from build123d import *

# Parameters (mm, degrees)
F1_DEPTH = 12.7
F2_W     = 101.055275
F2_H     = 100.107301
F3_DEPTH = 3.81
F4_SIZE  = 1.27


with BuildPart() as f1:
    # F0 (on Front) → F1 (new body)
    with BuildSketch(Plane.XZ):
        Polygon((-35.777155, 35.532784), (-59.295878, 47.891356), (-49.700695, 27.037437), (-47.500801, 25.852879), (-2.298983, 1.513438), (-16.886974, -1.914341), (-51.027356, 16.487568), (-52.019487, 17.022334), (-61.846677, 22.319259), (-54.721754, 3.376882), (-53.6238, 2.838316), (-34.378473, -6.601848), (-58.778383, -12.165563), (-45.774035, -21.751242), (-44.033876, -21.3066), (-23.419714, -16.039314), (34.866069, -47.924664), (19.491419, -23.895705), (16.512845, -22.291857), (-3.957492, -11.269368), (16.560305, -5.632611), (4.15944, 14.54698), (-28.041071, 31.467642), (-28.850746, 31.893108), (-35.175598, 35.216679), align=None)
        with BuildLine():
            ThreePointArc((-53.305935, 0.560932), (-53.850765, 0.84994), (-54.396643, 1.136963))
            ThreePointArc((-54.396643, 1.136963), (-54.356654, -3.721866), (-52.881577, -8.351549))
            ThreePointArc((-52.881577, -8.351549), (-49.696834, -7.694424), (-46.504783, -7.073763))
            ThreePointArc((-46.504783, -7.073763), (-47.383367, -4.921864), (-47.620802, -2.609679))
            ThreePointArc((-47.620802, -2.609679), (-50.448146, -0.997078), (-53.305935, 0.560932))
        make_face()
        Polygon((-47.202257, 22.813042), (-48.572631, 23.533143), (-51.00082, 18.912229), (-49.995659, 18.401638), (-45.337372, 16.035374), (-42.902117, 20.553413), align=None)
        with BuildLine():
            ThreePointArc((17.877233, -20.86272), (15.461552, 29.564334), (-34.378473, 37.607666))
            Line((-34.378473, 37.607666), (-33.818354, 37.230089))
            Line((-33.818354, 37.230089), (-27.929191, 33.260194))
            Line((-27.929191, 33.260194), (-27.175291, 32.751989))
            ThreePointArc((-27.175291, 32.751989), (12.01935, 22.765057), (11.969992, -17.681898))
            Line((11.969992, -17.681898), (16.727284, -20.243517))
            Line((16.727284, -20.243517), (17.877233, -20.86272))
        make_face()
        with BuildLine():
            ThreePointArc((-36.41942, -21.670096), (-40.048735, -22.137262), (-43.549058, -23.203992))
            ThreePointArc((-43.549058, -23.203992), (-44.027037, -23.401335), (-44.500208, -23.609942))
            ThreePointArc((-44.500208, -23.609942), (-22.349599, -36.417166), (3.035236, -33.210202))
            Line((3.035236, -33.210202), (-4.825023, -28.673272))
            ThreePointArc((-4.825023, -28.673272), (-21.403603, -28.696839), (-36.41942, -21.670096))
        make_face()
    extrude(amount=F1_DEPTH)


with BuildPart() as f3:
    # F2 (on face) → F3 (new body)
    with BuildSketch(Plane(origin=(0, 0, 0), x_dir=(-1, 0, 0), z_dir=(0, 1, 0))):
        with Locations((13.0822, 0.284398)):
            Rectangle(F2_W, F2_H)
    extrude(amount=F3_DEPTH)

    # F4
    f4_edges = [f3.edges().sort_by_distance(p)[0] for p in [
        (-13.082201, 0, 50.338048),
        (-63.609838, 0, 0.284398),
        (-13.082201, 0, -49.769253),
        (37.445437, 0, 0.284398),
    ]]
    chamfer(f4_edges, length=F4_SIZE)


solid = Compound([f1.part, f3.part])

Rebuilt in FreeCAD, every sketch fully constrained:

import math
import FreeCAD as App
import Part
import Sketcher

V = App.Vector
Q = App.Units.Quantity


def edges_at(feature, points):
    """Names of the edges that pass closest to the given points."""
    edges = feature.Shape.Edges
    near = lambda p: min(range(len(edges)), key=lambda i: edges[i].distToShape(Part.Vertex(*p))[0])
    return sorted({f"Edge{near(p) + 1}" for p in points})

doc = App.newDocument("Part")
body = doc.addObject("PartDesign::Body", "Body")
body.AllowCompound = True

# Sketch on XZ plane
sketch1 = body.newObject("Sketcher::SketchObject", "Sketch")
sketch1.AttachmentSupport = (doc.getObject("XZ_Plane"), [""])
sketch1.MapMode = "FlatFace"
sketch1.addGeometry([
    Part.LineSegment(V(-35.777155, 35.532784, 0), V(-59.295878, 47.891356, 0)),  # 0
    Part.LineSegment(V(-59.295878, 47.891356, 0), V(-49.700695, 27.037437, 0)),  # 1
    Part.LineSegment(V(-49.700695, 27.037437, 0), V(-47.500801, 25.852879, 0)),  # 2
    Part.LineSegment(V(-47.500801, 25.852879, 0), V(-2.298983, 1.513438, 0)),  # 3
    Part.LineSegment(V(-2.298983, 1.513438, 0), V(-16.886974, -1.914341, 0)),  # 4
    Part.LineSegment(V(-16.886974, -1.914341, 0), V(-51.027356, 16.487568, 0)),  # 5
    Part.LineSegment(V(-51.027356, 16.487568, 0), V(-52.019487, 17.022334, 0)),  # 6
    Part.LineSegment(V(-52.019487, 17.022334, 0), V(-61.846677, 22.319259, 0)),  # 7
    Part.LineSegment(V(-61.846677, 22.319259, 0), V(-54.721754, 3.376882, 0)),  # 8
    Part.LineSegment(V(-54.721754, 3.376882, 0), V(-53.6238, 2.838316, 0)),  # 9
    Part.LineSegment(V(-53.6238, 2.838316, 0), V(-34.378473, -6.601848, 0)),  # 10
    Part.LineSegment(V(-34.378473, -6.601848, 0), V(-58.778383, -12.165563, 0)),  # 11
    Part.LineSegment(V(-58.778383, -12.165563, 0), V(-45.774035, -21.751242, 0)),  # 12
    Part.LineSegment(V(-45.774035, -21.751242, 0), V(-44.033876, -21.3066, 0)),  # 13
    Part.LineSegment(V(-44.033876, -21.3066, 0), V(-23.419714, -16.039314, 0)),  # 14
    Part.LineSegment(V(-23.419714, -16.039314, 0), V(34.866069, -47.924664, 0)),  # 15
    Part.LineSegment(V(34.866069, -47.924664, 0), V(19.491419, -23.895705, 0)),  # 16
    Part.LineSegment(V(19.491419, -23.895705, 0), V(16.512845, -22.291857, 0)),  # 17
    Part.LineSegment(V(16.512845, -22.291857, 0), V(-3.957492, -11.269368, 0)),  # 18
    Part.LineSegment(V(-3.957492, -11.269368, 0), V(16.560305, -5.632611, 0)),  # 19
    Part.LineSegment(V(16.560305, -5.632611, 0), V(4.15944, 14.54698, 0)),  # 20
    Part.LineSegment(V(4.15944, 14.54698, 0), V(-28.041071, 31.467642, 0)),  # 21
    Part.LineSegment(V(-28.041071, 31.467642, 0), V(-28.850746, 31.893108, 0)),  # 22
    Part.LineSegment(V(-28.850746, 31.893108, 0), V(-35.175598, 35.216679, 0)),  # 23
    Part.LineSegment(V(-35.175598, 35.216679, 0), V(-35.777155, 35.532784, 0)),  # 24
    Part.ArcOfCircle(Part.Circle(V(-132.985121, -148.990044, 0), V(0, 0, 1), 169.452846), math.radians(61.951779), math.radians(62.368844)),  # 25
    Part.ArcOfCircle(Part.Circle(V(-38.313851, -1.160252, 0), V(0, 0, 1), 16.246027), math.radians(171.871039), math.radians(206.273058)),  # 26
    Part.ArcOfCircle(Part.Circle(V(6.169142, -286.493703, 0), V(0, 0, 1), 284.341423), math.radians(100.675642), math.radians(101.986159)),  # 27
    Part.ArcOfCircle(Part.Circle(V(-39.452634, -2.939185, 0), V(0, 0, 1), 8.174811), math.radians(177.689927), math.radians(210.382512)),  # 28
    Part.ArcOfCircle(Part.Circle(V(-133.00333, -149.024446, 0), V(0, 0, 1), 169.49177), math.radians(59.75118), math.radians(61.951815)),  # 29
    Part.LineSegment(V(-47.202257, 22.813042, 0), V(-48.572631, 23.533143, 0)),  # 30
    Part.LineSegment(V(-48.572631, 23.533143, 0), V(-51.00082, 18.912229, 0)),  # 31
    Part.LineSegment(V(-51.00082, 18.912229, 0), V(-49.995659, 18.401638, 0)),  # 32
    Part.LineSegment(V(-49.995659, 18.401638, 0), V(-45.337372, 16.035374, 0)),  # 33
    Part.LineSegment(V(-45.337372, 16.035374, 0), V(-42.902117, 20.553413, 0)),  # 34
    Part.LineSegment(V(-42.902117, 20.553413, 0), V(-47.202257, 22.813042, 0)),  # 35
    Part.ArcOfCircle(Part.Circle(V(-14.41685, 2.861637, 0), V(0, 0, 1), 40.071847), math.radians(-36.302299), math.radians(119.877404)),  # 36
    Part.LineSegment(V(-34.378473, 37.607666, 0), V(-33.818354, 37.230089, 0)),  # 37
    Part.LineSegment(V(-33.818354, 37.230089, 0), V(-27.929191, 33.260194, 0)),  # 38
    Part.LineSegment(V(-27.929191, 33.260194, 0), V(-27.175291, 32.751989, 0)),  # 39
    Part.ArcOfCircle(Part.Circle(V(-13.995255, 2.573295, 0), V(0, 0, 1), 32.931245), math.radians(-37.957387), math.radians(113.592489)),  # 40
    Part.LineSegment(V(11.969992, -17.681898, 0), V(16.727284, -20.243517, 0)),  # 41
    Part.LineSegment(V(16.727284, -20.243517, 0), V(17.877233, -20.86272, 0)),  # 42
    Part.ArcOfCircle(Part.Circle(V(-35.456455, -43.482448, 0), V(0, 0, 1), 21.833598), math.radians(92.527835), math.radians(111.755653)),  # 43
    Part.ArcOfCircle(Part.Circle(V(-35.456216, -43.48296, 0), V(0, 0, 1), 21.834162), math.radians(111.755737), math.radians(114.469759)),  # 44
    Part.ArcOfCircle(Part.Circle(V(-14.41685, 2.861639, 0), V(0, 0, 1), 40.071848), math.radians(-138.654127), math.radians(-64.181621)),  # 45
    Part.LineSegment(V(3.035236, -33.210202, 0), V(-4.825023, -28.673272, 0)),  # 46
    Part.ArcOfCircle(Part.Circle(V(-13.167118, 8.461555, 0), V(0, 0, 1), 38.060294), math.radians(-127.657019), math.radians(-77.339063)),  # 47
], False)
sketch1.addConstraint([
    Sketcher.Constraint("Coincident", 0, 2, 1, 1),
    Sketcher.Constraint("Coincident", 1, 2, 2, 1),
    Sketcher.Constraint("Coincident", 2, 2, 3, 1),
    Sketcher.Constraint("Coincident", 3, 2, 4, 1),
    Sketcher.Constraint("Coincident", 4, 2, 5, 1),
    Sketcher.Constraint("Coincident", 5, 2, 6, 1),
    Sketcher.Constraint("Coincident", 6, 2, 7, 1),
    Sketcher.Constraint("Coincident", 7, 2, 8, 1),
    Sketcher.Constraint("Coincident", 8, 2, 9, 1),
    Sketcher.Constraint("Coincident", 9, 2, 10, 1),
    Sketcher.Constraint("Coincident", 10, 2, 11, 1),
    Sketcher.Constraint("Coincident", 11, 2, 12, 1),
    Sketcher.Constraint("Coincident", 12, 2, 13, 1),
    Sketcher.Constraint("Coincident", 13, 2, 14, 1),
    Sketcher.Constraint("Coincident", 14, 2, 15, 1),
    Sketcher.Constraint("Coincident", 15, 2, 16, 1),
    Sketcher.Constraint("Coincident", 16, 2, 17, 1),
    Sketcher.Constraint("Coincident", 17, 2, 18, 1),
    Sketcher.Constraint("Coincident", 18, 2, 19, 1),
    Sketcher.Constraint("Coincident", 19, 2, 20, 1),
    Sketcher.Constraint("Coincident", 20, 2, 21, 1),
    Sketcher.Constraint("Coincident", 21, 2, 22, 1),
    Sketcher.Constraint("Coincident", 22, 2, 23, 1),
    Sketcher.Constraint("Coincident", 23, 2, 24, 1),
    Sketcher.Constraint("Coincident", 24, 2, 0, 1),
    Sketcher.Constraint("Coincident", 25, 2, 26, 1),
    Sketcher.Constraint("Coincident", 26, 2, 27, 2),
    Sketcher.Constraint("Coincident", 27, 1, 28, 2),
    Sketcher.Constraint("Coincident", 28, 1, 29, 1),
    Sketcher.Constraint("Coincident", 29, 2, 25, 1),
    Sketcher.Constraint("Coincident", 30, 2, 31, 1),
    Sketcher.Constraint("Coincident", 31, 2, 32, 1),
    Sketcher.Constraint("Coincident", 32, 2, 33, 1),
    Sketcher.Constraint("Coincident", 33, 2, 34, 1),
    Sketcher.Constraint("Coincident", 34, 2, 35, 1),
    Sketcher.Constraint("Coincident", 35, 2, 30, 1),
    Sketcher.Constraint("Coincident", 36, 2, 37, 1),
    Sketcher.Constraint("Coincident", 37, 2, 38, 1),
    Sketcher.Constraint("Coincident", 38, 2, 39, 1),
    Sketcher.Constraint("Coincident", 39, 2, 40, 2),
    Sketcher.Constraint("Coincident", 40, 1, 41, 1),
    Sketcher.Constraint("Coincident", 41, 2, 42, 1),
    Sketcher.Constraint("Coincident", 42, 2, 36, 1),
    Sketcher.Constraint("Coincident", 43, 2, 44, 1),
    Sketcher.Constraint("Coincident", 44, 2, 45, 1),
    Sketcher.Constraint("Coincident", 45, 2, 46, 1),
    Sketcher.Constraint("Coincident", 46, 2, 47, 2),
    Sketcher.Constraint("Coincident", 47, 1, 43, 1),
    Sketcher.Constraint("Coincident", 45, 3, 36, 3),
    Sketcher.Constraint("Radius", 43, Q("21.833598 mm")),
    Sketcher.Constraint("Radius", 28, Q("8.174811 mm")),
    Sketcher.Constraint("Radius", 29, Q("169.49177 mm")),
    Sketcher.Constraint("Radius", 44, Q("21.834162 mm")),
    Sketcher.Constraint("Radius", 45, Q("40.071848 mm")),
    Sketcher.Constraint("DistanceX", 25, 2, -1, 1, Q("2.1416001 in")),
    Sketcher.Constraint("Radius", 25, Q("169.452846 mm")),
    Sketcher.Constraint("Radius", 26, Q("16.246027 mm")),
    Sketcher.Constraint("Radius", 27, Q("284.341423 mm")),
    Sketcher.Constraint("Radius", 36, Q("40.071847 mm")),
    Sketcher.Constraint("Radius", 40, Q("32.931245 mm")),
    Sketcher.Constraint("Radius", 47, Q("38.060294 mm")),
    Sketcher.Constraint("DistanceY", 4, 2, 47, 3, Q("0.4084999 in")),
    Sketcher.Constraint("DistanceY", 21, 2, 23, 2, Q("0.1475999 in")),
    Sketcher.Constraint("DistanceY", 46, 2, 14, 2, Q("0.4973999 in")),
    Sketcher.Constraint("Distance", 18, Q("23.2493 mm")),
    Sketcher.Constraint("Distance", 37, Q("0.675498 mm")),
    Sketcher.Constraint("DistanceX", 2, 2, -1, 1, Q("47.500801 mm")),
    Sketcher.Constraint("DistanceX", 9, 2, -1, 1, Q("53.6238 mm")),
    Sketcher.Constraint("DistanceY", 13, 2, -1, 1, Q("21.3066 mm")),
    Sketcher.Constraint("DistanceX", 28, 1, -1, 1, Q("47.620802 mm")),
    Sketcher.Constraint("DistanceY", 45, 2, -1, 1, Q("33.210202 mm")),
    Sketcher.Constraint("DistanceX", 26, 3, 36, 3, Q("23.897001 mm")),
    Sketcher.Constraint("DistanceX", 43, 3, 40, 3, Q("21.4612 mm")),
    Sketcher.Constraint("DistanceY", 47, 3, 0, 2, Q("39.429801 mm")),
    Sketcher.Constraint("DistanceY", 45, 3, 1, 2, Q("24.175798 mm")),
    Sketcher.Constraint("DistanceY", 3, 2, 36, 3, Q("1.348199 mm")),
    Sketcher.Constraint("DistanceX", 7, 2, 0, 2, Q("2.550799 mm")),
    Sketcher.Constraint("DistanceY", 28, 3, 9, 2, Q("5.777501 mm")),
    Sketcher.Constraint("DistanceX", 10, 2, 4, 2, Q("17.491499 mm")),
    Sketcher.Constraint("DistanceX", 12, 2, 28, 3, Q("6.321401 mm")),
    Sketcher.Constraint("DistanceX", 3, 2, 16, 2, Q("21.790402 mm")),
    Sketcher.Constraint("DistanceY", 16, 2, 40, 3, Q("26.469 mm")),
    Sketcher.Constraint("DistanceX", 40, 3, 17, 2, Q("30.5081 mm")),
    Sketcher.Constraint("DistanceY", 2, 2, 23, 2, Q("9.3638 mm")),
    Sketcher.Constraint("DistanceY", 35, 2, 30, 2, Q("0.720101 mm")),
    Sketcher.Constraint("DistanceX", 24, 2, 37, 2, Q("1.958801 mm")),
    Sketcher.Constraint("DistanceX", 38, 2, 39, 2, Q("0.7539 mm")),
    Sketcher.Constraint("DistanceY", 39, 2, 37, 2, Q("4.4781 mm")),
    Sketcher.Constraint("DistanceY", 44, 2, 12, 2, Q("1.8587 mm")),
    Sketcher.Constraint("Distance", 2, Q("2.498542 mm")),
    Sketcher.Constraint("Distance", 3, Q("51.338219 mm")),
    Sketcher.Constraint("Distance", 7, Q("11.163829 mm")),
    Sketcher.Constraint("Distance", 9, Q("1.222929 mm")),
    Sketcher.Constraint("Distance", 15, Q("66.437249 mm")),
    Sketcher.Constraint("Distance", 23, Q("7.14492 mm")),
    Sketcher.Constraint("Distance", 32, Q("1.127409 mm")),
    Sketcher.Constraint("Distance", 33, Q("5.224829 mm")),
    Sketcher.Constraint("Distance", 41, Q("5.403121 mm")),
    Sketcher.Constraint("Distance", 42, Q("1.306061 mm")),
    Sketcher.Constraint("Distance", 46, Q("9.075649 mm")),
    Sketcher.Constraint("DistanceX", 25, 3, -1, 1, Q("132.985121 mm")),
    Sketcher.Constraint("DistanceX", 26, 3, -1, 1, Q("38.313851 mm")),
    Sketcher.Constraint("DistanceY", 26, 3, -1, 1, Q("1.160252 mm")),
    Sketcher.Constraint("DistanceX", -1, 1, 27, 3, Q("6.169142 mm")),
    Sketcher.Constraint("DistanceX", 29, 3, -1, 1, Q("133.00333 mm")),
    Sketcher.Constraint("DistanceY", 43, 3, -1, 1, Q("43.482448 mm")),
    Sketcher.Constraint("DistanceY", 44, 3, -1, 1, Q("43.48296 mm")),
    Sketcher.Constraint("DistanceY", -1, 1, 45, 3, Q("2.861639 mm")),
    Sketcher.Constraint("DistanceX", 47, 3, -1, 1, Q("13.167118 mm")),
    Sketcher.Constraint("DistanceX", 0, 2, -1, 1, Q("59.295878 mm")),
    Sketcher.Constraint("DistanceY", -1, 1, 2, 2, Q("25.852879 mm")),
    Sketcher.Constraint("DistanceY", 4, 2, -1, 1, Q("1.914341 mm")),
    Sketcher.Constraint("DistanceY", -1, 1, 7, 2, Q("22.319259 mm")),
    Sketcher.Constraint("DistanceY", 10, 2, -1, 1, Q("6.601848 mm")),
    Sketcher.Constraint("DistanceX", -1, 1, 15, 2, Q("34.866069 mm")),
    Sketcher.Constraint("DistanceX", 18, 2, -1, 1, Q("3.957492 mm")),
    Sketcher.Constraint("DistanceY", 19, 2, -1, 1, Q("5.632611 mm")),
    Sketcher.Constraint("DistanceX", -1, 1, 20, 2, Q("4.15944 mm")),
    Sketcher.Constraint("DistanceY", -1, 1, 20, 2, Q("14.54698 mm")),
    Sketcher.Constraint("DistanceX", 21, 2, -1, 1, Q("28.041071 mm")),
    Sketcher.Constraint("DistanceY", -1, 1, 22, 2, Q("31.893108 mm")),
    Sketcher.Constraint("DistanceY", 26, 2, -1, 1, Q("8.351549 mm")),
    Sketcher.Constraint("DistanceY", -1, 1, 29, 2, Q("0.560932 mm")),
    Sketcher.Constraint("DistanceX", 30, 2, -1, 1, Q("48.572631 mm")),
    Sketcher.Constraint("DistanceX", 31, 2, -1, 1, Q("51.00082 mm")),
    Sketcher.Constraint("DistanceY", -1, 1, 31, 2, Q("18.912229 mm")),
    Sketcher.Constraint("DistanceX", 32, 2, -1, 1, Q("49.995659 mm")),
    Sketcher.Constraint("DistanceY", -1, 1, 35, 2, Q("22.813042 mm")),
    Sketcher.Constraint("DistanceY", -1, 1, 37, 2, Q("37.230089 mm")),
    Sketcher.Constraint("DistanceX", 38, 2, -1, 1, Q("27.929191 mm")),
    Sketcher.Constraint("DistanceX", -1, 1, 40, 1, Q("11.969992 mm")),
    Sketcher.Constraint("DistanceY", 42, 2, -1, 1, Q("20.86272 mm")),
    Sketcher.Constraint("DistanceY", 25, 3, 28, 3, Q("146.050859 mm")),
    Sketcher.Constraint("DistanceX", 4, 2, 40, 3, Q("2.891719 mm")),
    Sketcher.Constraint("DistanceY", 5, 2, 2, 2, Q("9.365311 mm")),
    Sketcher.Constraint("DistanceX", 5, 2, 1, 2, Q("1.326661 mm")),
    Sketcher.Constraint("DistanceX", 6, 2, 5, 2, Q("0.992131 mm")),
    Sketcher.Constraint("DistanceX", 8, 2, 28, 3, Q("15.26912 mm")),
    Sketcher.Constraint("DistanceY", 11, 2, 9, 2, Q("15.003879 mm")),
    Sketcher.Constraint("DistanceX", 11, 2, 8, 2, Q("4.056629 mm")),
    Sketcher.Constraint("DistanceX", 12, 2, 13, 2, Q("1.740159 mm")),
    Sketcher.Constraint("DistanceX", 10, 2, 14, 2, Q("10.958759 mm")),
    Sketcher.Constraint("DistanceX", 17, 2, 19, 2, Q("0.04746 mm")),
    Sketcher.Constraint("DistanceX", 1, 2, 22, 2, Q("20.849949 mm")),
    Sketcher.Constraint("DistanceX", 24, 2, 22, 2, Q("6.926409 mm")),
    Sketcher.Constraint("DistanceY", 21, 2, 24, 2, Q("4.065142 mm")),
    Sketcher.Constraint("DistanceY", 33, 2, 6, 2, Q("0.98696 mm")),
    Sketcher.Constraint("DistanceY", 33, 2, 34, 2, Q("4.518039 mm")),
    Sketcher.Constraint("DistanceX", 35, 2, 34, 2, Q("4.30014 mm")),
    Sketcher.Constraint("DistanceX", 1, 2, 35, 2, Q("2.498438 mm")),
    Sketcher.Constraint("DistanceY", 21, 2, 38, 2, Q("1.792552 mm")),
    Sketcher.Constraint("DistanceY", 17, 2, 40, 1, Q("4.609959 mm")),
    Sketcher.Constraint("DistanceX", 17, 2, 41, 2, Q("0.214439 mm")),
    Sketcher.Constraint("DistanceX", 13, 2, 43, 2, Q("0.484818 mm")),
])
pad1 = body.newObject("PartDesign::Pad", "Pad")
pad1.Profile = sketch1
pad1.Length = Q("0.5 in")
body2 = doc.addObject("PartDesign::Body", "Body001")

# Sketch on XZ plane
sketch2 = body2.newObject("Sketcher::SketchObject", "Sketch001")
sketch2.AttachmentSupport = (doc.getObject("XZ_Plane001"), [""])
sketch2.MapMode = "FlatFace"
sketch2.addGeometry([
    Part.LineSegment(V(37, 50, 0), V(37, -50, 0)),
    Part.LineSegment(V(37, -50, 0), V(-64, -50, 0)),
    Part.LineSegment(V(-64, -50, 0), V(-64, 50, 0)),
    Part.LineSegment(V(-64, 50, 0), V(37, 50, 0)),
], False)
sketch2.addConstraint([
    Sketcher.Constraint("Coincident", 0, 2, 1, 1),
    Sketcher.Constraint("Coincident", 1, 2, 2, 1),
    Sketcher.Constraint("Coincident", 2, 2, 3, 1),
    Sketcher.Constraint("Coincident", 3, 2, 0, 1),
    Sketcher.Constraint("Vertical", 0),
    Sketcher.Constraint("Horizontal", 1),
    Sketcher.Constraint("Vertical", 2),
    Sketcher.Constraint("Horizontal", 3),
    Sketcher.Constraint("DistanceY", 0, 2, 0, 1, Q("100.107301 mm")),
    Sketcher.Constraint("DistanceX", 1, 2, 1, 1, Q("101.055275 mm")),
    Sketcher.Constraint("DistanceY", -1, 1, 2, 2, Q("50.338048 mm")),
    Sketcher.Constraint("DistanceX", -1, 1, 0, 2, Q("37.445437 mm")),
])
pad2 = body2.newObject("PartDesign::Pad", "Pad001")
pad2.Profile = sketch2
pad2.Length = Q("0.15 in")
pad2.Reversed = True
doc.recompute()

chamfer = body2.newObject("PartDesign::Chamfer", "Chamfer")
chamfer.Base = (pad2, edges_at(pad2, [
    (-13.082, 0, 50.338),
    (-63.61, 0, 0.284),
    (-13.082, 0, -49.769),
    (37.445, 0, 0.284),
]))
chamfer.Size = Q("0.05 in")

doc.recompute()
